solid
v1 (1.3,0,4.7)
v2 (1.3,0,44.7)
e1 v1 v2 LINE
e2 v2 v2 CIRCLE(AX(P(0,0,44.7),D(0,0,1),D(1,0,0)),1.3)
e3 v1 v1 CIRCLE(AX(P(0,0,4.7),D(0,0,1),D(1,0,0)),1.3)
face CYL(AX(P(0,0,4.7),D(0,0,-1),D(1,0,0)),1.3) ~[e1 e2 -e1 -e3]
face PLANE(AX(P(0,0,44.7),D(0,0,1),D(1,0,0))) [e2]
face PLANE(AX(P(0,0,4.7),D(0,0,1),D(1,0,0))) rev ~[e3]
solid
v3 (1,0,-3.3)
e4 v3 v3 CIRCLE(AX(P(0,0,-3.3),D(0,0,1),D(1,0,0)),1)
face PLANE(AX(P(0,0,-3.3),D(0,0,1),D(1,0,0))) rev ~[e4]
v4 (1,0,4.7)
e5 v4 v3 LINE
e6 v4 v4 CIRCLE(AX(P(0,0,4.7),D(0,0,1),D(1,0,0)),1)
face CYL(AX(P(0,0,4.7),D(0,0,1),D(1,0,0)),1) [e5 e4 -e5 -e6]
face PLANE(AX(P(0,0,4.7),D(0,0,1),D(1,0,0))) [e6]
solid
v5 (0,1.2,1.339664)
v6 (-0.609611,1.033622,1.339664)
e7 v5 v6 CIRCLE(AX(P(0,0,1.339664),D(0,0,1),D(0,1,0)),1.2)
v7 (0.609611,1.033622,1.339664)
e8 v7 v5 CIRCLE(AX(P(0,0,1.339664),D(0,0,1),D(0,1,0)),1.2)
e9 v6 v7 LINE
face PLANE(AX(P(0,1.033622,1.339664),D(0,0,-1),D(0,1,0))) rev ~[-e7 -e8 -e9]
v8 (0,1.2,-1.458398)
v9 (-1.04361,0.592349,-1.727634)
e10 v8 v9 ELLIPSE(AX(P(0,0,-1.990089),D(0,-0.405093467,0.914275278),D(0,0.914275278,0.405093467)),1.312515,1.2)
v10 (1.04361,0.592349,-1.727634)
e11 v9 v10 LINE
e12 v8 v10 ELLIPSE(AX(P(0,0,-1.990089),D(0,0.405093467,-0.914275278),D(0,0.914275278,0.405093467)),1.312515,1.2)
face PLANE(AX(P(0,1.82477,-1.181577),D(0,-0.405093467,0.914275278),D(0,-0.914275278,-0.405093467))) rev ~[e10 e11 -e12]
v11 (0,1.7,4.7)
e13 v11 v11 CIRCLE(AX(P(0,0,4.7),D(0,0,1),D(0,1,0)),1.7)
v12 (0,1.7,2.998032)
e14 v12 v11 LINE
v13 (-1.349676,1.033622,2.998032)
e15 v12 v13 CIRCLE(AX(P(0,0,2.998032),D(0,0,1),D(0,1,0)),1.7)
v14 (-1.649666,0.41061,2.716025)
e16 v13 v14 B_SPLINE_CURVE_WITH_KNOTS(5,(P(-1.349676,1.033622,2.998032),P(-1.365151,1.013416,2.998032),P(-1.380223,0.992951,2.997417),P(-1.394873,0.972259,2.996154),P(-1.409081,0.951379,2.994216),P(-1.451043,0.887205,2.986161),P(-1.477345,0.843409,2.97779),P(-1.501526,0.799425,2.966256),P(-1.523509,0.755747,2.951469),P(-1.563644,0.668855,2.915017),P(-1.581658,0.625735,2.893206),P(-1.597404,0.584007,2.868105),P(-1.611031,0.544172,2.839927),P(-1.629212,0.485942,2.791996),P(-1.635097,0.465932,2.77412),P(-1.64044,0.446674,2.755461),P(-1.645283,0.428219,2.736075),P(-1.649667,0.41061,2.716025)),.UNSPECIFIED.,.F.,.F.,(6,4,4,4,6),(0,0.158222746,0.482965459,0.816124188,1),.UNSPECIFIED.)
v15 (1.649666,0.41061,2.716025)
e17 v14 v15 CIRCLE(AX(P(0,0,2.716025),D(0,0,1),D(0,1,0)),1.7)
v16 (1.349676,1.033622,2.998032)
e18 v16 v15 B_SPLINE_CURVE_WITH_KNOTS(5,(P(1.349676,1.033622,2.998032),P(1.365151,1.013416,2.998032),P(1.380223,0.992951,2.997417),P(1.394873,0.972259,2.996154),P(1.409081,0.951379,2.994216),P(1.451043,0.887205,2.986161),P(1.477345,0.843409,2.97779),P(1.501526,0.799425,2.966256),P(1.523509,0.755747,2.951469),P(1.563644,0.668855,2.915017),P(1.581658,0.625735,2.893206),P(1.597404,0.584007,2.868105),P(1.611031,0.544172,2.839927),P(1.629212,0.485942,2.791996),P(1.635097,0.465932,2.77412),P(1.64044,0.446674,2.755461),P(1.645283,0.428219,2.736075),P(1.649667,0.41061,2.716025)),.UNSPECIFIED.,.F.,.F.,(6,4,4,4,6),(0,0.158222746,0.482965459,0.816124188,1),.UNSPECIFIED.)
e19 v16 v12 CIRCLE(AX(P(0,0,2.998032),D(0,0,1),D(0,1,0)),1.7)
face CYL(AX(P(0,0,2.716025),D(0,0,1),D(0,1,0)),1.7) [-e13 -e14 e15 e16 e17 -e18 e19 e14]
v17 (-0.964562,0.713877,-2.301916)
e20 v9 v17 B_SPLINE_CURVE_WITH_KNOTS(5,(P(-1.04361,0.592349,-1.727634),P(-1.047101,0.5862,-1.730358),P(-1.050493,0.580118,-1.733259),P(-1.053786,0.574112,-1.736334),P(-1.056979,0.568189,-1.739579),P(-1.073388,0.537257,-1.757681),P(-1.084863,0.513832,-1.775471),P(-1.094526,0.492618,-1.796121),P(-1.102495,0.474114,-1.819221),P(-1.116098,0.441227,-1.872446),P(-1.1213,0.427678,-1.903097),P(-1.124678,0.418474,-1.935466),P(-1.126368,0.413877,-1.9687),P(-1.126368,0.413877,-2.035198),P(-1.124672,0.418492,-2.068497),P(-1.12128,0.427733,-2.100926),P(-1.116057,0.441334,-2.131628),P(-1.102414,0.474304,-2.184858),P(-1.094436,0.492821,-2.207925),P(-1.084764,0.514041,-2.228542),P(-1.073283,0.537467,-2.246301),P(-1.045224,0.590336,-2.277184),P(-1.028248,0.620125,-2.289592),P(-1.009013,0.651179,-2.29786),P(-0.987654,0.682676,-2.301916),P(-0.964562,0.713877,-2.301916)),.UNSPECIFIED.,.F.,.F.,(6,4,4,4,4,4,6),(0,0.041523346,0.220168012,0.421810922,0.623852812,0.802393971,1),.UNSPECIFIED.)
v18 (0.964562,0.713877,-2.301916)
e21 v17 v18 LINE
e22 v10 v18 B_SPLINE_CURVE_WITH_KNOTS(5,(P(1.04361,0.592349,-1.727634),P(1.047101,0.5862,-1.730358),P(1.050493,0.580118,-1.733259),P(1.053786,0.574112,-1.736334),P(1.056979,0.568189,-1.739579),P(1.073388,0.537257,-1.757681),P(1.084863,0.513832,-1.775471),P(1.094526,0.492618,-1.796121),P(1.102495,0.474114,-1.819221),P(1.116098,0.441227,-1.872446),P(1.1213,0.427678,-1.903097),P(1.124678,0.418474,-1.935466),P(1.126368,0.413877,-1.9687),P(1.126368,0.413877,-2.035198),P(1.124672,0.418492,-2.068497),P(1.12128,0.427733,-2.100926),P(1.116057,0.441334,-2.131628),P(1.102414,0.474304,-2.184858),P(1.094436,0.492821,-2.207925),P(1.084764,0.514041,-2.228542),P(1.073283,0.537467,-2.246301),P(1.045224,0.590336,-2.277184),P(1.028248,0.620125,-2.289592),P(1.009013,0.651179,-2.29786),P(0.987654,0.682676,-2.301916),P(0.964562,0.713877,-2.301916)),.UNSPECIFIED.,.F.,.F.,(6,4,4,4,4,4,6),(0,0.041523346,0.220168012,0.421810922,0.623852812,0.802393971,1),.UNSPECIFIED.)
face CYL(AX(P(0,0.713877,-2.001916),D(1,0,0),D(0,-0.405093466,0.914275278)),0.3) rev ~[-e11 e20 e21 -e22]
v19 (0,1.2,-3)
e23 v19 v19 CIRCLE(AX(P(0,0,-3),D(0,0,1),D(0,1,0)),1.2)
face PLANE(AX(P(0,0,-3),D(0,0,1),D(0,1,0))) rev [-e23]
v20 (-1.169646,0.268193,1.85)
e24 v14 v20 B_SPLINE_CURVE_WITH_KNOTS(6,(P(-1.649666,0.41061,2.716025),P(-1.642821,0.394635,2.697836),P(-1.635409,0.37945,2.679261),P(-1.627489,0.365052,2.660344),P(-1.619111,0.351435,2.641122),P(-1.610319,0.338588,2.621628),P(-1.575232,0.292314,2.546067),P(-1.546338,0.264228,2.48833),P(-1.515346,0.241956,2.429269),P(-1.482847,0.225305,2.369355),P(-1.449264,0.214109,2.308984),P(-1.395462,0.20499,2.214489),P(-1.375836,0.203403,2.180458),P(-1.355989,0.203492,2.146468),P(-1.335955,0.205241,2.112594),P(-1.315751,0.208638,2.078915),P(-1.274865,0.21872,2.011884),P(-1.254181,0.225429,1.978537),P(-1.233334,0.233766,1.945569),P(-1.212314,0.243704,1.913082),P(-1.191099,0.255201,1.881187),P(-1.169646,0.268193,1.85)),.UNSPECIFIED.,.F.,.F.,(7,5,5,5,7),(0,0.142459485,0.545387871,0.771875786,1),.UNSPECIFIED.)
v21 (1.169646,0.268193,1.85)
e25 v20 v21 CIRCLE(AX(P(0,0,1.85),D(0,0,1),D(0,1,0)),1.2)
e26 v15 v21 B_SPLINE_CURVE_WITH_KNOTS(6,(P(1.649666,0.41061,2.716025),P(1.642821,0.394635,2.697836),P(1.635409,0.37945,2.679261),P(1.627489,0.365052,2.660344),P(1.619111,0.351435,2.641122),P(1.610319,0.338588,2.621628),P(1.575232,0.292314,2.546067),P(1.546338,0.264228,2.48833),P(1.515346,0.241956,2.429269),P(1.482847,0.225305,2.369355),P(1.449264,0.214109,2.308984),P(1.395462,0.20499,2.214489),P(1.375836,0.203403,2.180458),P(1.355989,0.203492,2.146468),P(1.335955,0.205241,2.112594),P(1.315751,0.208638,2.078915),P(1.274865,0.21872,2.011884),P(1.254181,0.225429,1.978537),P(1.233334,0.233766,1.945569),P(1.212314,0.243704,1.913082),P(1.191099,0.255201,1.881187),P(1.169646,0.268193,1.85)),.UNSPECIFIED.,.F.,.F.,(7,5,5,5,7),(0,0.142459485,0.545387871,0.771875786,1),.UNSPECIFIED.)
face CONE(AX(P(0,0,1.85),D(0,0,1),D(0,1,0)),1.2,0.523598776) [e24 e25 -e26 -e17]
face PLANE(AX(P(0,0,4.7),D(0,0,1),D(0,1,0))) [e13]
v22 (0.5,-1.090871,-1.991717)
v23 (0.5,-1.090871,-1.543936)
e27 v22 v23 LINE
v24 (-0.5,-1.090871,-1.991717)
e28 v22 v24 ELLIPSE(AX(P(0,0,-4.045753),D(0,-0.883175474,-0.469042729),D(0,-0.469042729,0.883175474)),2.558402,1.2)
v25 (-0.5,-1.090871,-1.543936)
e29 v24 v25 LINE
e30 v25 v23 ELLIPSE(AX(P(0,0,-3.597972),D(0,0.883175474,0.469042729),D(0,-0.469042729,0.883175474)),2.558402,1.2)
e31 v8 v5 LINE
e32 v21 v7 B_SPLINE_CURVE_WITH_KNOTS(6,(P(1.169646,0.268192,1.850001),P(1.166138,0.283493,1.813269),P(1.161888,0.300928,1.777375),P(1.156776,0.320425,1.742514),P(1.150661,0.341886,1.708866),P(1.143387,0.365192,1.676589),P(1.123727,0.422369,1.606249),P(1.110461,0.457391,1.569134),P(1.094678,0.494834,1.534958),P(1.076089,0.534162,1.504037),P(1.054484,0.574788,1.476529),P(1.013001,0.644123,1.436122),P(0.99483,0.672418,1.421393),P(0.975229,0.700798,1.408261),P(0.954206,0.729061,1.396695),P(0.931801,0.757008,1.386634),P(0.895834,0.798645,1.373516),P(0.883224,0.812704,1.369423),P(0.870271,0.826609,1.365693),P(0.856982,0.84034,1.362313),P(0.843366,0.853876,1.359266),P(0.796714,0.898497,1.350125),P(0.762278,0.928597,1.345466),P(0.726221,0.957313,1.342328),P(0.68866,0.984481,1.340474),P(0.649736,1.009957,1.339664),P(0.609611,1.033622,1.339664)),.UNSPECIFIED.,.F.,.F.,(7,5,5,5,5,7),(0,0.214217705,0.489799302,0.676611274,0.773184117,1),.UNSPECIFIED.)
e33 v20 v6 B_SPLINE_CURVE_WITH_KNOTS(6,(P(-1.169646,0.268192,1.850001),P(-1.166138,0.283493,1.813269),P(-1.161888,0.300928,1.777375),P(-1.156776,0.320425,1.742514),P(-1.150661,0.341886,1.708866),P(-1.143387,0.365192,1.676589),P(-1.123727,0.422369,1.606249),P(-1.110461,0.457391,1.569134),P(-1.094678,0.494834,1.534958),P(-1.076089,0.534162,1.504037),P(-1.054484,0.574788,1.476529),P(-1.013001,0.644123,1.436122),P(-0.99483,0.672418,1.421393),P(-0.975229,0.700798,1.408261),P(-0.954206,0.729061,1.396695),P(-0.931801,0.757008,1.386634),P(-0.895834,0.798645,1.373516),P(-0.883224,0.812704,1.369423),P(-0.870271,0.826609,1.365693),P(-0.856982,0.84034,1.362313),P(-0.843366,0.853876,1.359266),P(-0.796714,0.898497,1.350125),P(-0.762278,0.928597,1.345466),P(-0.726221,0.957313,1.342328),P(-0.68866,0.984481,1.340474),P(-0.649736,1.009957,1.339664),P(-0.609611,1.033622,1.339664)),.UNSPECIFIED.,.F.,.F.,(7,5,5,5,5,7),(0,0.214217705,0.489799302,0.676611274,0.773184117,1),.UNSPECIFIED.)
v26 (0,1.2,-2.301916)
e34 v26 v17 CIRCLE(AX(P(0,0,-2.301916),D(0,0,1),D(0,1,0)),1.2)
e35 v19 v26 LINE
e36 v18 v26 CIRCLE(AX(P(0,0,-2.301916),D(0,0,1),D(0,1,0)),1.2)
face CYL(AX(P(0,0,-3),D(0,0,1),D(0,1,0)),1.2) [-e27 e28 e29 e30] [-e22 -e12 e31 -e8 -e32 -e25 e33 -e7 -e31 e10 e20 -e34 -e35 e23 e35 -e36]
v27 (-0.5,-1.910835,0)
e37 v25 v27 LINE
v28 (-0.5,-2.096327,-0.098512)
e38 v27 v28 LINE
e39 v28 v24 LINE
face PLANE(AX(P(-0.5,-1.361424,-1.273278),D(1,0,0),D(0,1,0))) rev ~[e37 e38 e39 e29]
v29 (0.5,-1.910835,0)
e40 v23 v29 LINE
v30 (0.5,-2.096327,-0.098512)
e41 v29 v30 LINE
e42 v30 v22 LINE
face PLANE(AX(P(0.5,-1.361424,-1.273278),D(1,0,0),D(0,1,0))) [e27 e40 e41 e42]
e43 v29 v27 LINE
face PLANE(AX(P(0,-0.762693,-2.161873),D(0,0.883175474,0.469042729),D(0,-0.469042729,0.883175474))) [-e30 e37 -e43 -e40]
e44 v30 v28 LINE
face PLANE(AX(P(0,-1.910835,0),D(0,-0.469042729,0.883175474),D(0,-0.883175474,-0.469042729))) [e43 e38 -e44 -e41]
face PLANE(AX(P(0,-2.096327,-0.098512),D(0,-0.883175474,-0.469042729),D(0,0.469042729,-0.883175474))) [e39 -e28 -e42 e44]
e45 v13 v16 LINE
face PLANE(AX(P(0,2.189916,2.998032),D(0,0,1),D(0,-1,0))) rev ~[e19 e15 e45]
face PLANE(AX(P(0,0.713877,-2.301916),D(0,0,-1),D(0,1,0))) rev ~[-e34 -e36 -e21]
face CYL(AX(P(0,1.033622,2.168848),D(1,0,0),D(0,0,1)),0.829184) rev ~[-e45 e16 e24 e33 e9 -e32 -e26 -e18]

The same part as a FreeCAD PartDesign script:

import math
import FreeCAD as App
import Part
import Sketcher
Q = App.Units.Quantity

doc = App.newDocument("Part")
body = doc.addObject("PartDesign::Body", "Body")

sketch1 = body.newObject("Sketcher::SketchObject", "Sketch")
sketch1.AttachmentSupport = (doc.getObject("YZ_Plane"), [""])
sketch1.MapMode = "FlatFace"
sketch1.addGeometry(Part.LineSegment(App.Vector(0, 4.7, 0), App.Vector(0, -3, 0)), False)
sketch1.addGeometry(Part.LineSegment(App.Vector(0, -3, 0), App.Vector(1.2, -3, 0)), False)
sketch1.addGeometry(Part.LineSegment(App.Vector(1.2, -3, 0), App.Vector(1.2, 1.9, 0)), False)
sketch1.addGeometry(Part.LineSegment(App.Vector(1.2, 1.9, 0), App.Vector(1.7, 2.7, 0)), False)
sketch1.addGeometry(Part.LineSegment(App.Vector(1.7, 2.7, 0), App.Vector(1.7, 4.7, 0)), False)
sketch1.addGeometry(Part.LineSegment(App.Vector(1.7, 4.7, 0), App.Vector(0, 4.7, 0)), False)
sketch1.addConstraint(Sketcher.Constraint("Coincident", 0, 2, 1, 1))
sketch1.addConstraint(Sketcher.Constraint("Coincident", 1, 2, 2, 1))
sketch1.addConstraint(Sketcher.Constraint("Coincident", 2, 2, 3, 1))
sketch1.addConstraint(Sketcher.Constraint("Coincident", 3, 2, 4, 1))
sketch1.addConstraint(Sketcher.Constraint("Coincident", 4, 2, 5, 1))
sketch1.addConstraint(Sketcher.Constraint("Coincident", 5, 2, 0, 1))
sketch1.addConstraint(Sketcher.Constraint("Vertical", 0))
sketch1.addConstraint(Sketcher.Constraint("Horizontal", 1))
sketch1.addConstraint(Sketcher.Constraint("Vertical", 2))
sketch1.addConstraint(Sketcher.Constraint("Vertical", 4))
sketch1.addConstraint(Sketcher.Constraint("Horizontal", 5))
sketch1.addConstraint(Sketcher.Constraint("PointOnObject", 0, 2, -2))
sketch1.addConstraint(Sketcher.Constraint("Angle", 3, Q("60 deg")))
sketch1.addConstraint(Sketcher.Constraint("Distance", 3, Q("1 mm")))
sketch1.addConstraint(Sketcher.Constraint("DistanceX", 1, 1, 1, 2, Q("1.2 mm")))
sketch1.addConstraint(Sketcher.Constraint("DistanceY", 0, 2, 0, 1, Q("7.7 mm")))
sketch1.addConstraint(Sketcher.Constraint("DistanceY", 0, 2, -1, 1, Q("3 mm")))
sketch1.addConstraint(Sketcher.Constraint("DistanceY", 2, 1, 2, 2, Q("4.85 mm")))
revolution = body.newObject("PartDesign::Revolution", "Revolution")
revolution.Profile = sketch1
revolution.ReferenceAxis = (sketch1, ["V_Axis"])
revolution.Angle = 360

sketch2 = body.newObject("Sketcher::SketchObject", "Sketch001")
sketch2.AttachmentSupport = (doc.getObject("YZ_Plane"), [""])
sketch2.MapMode = "FlatFace"
sketch2.addGeometry(Part.LineSegment(App.Vector(2.19, 1.34, 0), App.Vector(2.19, 3, 0)), False)
sketch2.addGeometry(Part.LineSegment(App.Vector(2.19, 3, 0), App.Vector(1.03, 3, 0)), False)
sketch2.addGeometry(Part.ArcOfCircle(Part.Circle(App.Vector(1.03, 2.17, 0), App.Vector(0, 0, 1), 0.83), math.radians(90), math.radians(270)), False)
sketch2.addGeometry(Part.LineSegment(App.Vector(1.03, 1.34, 0), App.Vector(2.19, 1.34, 0)), False)
sketch2.addGeometry(Part.LineSegment(App.Vector(0.71, -2.3, 0), App.Vector(1.82, -2.3, 0)), False)
sketch2.addGeometry(Part.LineSegment(App.Vector(1.82, -2.3, 0), App.Vector(1.82, -1.18, 0)), False)
sketch2.addGeometry(Part.LineSegment(App.Vector(1.82, -1.18, 0), App.Vector(0.59, -1.73, 0)), False)
sketch2.addGeometry(Part.ArcOfCircle(Part.Circle(App.Vector(0.71, -2, 0), App.Vector(0, 0, 1), 0.3), math.radians(114), math.radians(270)), False)
sketch2.addConstraint(Sketcher.Constraint("Coincident", 0, 2, 1, 1))
sketch2.addConstraint(Sketcher.Constraint("Tangent", 1, 2, 2, 1))
sketch2.addConstraint(Sketcher.Constraint("Tangent", 2, 2, 3, 1))
sketch2.addConstraint(Sketcher.Constraint("Coincident", 3, 2, 0, 1))
sketch2.addConstraint(Sketcher.Constraint("Coincident", 4, 2, 5, 1))
sketch2.addConstraint(Sketcher.Constraint("Coincident", 5, 2, 6, 1))
sketch2.addConstraint(Sketcher.Constraint("Tangent", 6, 2, 7, 1))
sketch2.addConstraint(Sketcher.Constraint("Tangent", 7, 2, 4, 1))
sketch2.addConstraint(Sketcher.Constraint("Vertical", 0))
sketch2.addConstraint(Sketcher.Constraint("Horizontal", 1))
sketch2.addConstraint(Sketcher.Constraint("Horizontal", 3))
sketch2.addConstraint(Sketcher.Constraint("Horizontal", 4))
sketch2.addConstraint(Sketcher.Constraint("Vertical", 5))
sketch2.addConstraint(Sketcher.Constraint("Radius", 7, Q("0.3 mm")))
sketch2.addConstraint(Sketcher.Constraint("Radius", 2, Q("0.829184 mm")))
sketch2.addConstraint(Sketcher.Constraint("DistanceY", 5, 1, 5, 2, Q("1.120339 mm")))
sketch2.addConstraint(Sketcher.Constraint("DistanceX", 1, 2, 1, 1, Q("1.156293 mm")))
sketch2.addConstraint(Sketcher.Constraint("DistanceX", 4, 1, 4, 2, Q("1.110893 mm")))
sketch2.addConstraint(Sketcher.Constraint("DistanceY", -1, 1, 2, 3, Q("2.168848 mm")))
sketch2.addConstraint(Sketcher.Constraint("DistanceX", -1, 1, 4, 2, Q("1.82477 mm")))
sketch2.addConstraint(Sketcher.Constraint("DistanceX", 7, 3, 0, 2, Q("1.476038 mm")))
sketch2.addConstraint(Sketcher.Constraint("DistanceY", 7, 3, 0, 2, Q("4.999949 mm")))
pocket1 = body.newObject("PartDesign::Pocket", "Pocket")
pocket1.Profile = sketch2
pocket1.Type = "ThroughAll"
pocket1.Midplane = True

sketch3 = body.newObject("Sketcher::SketchObject", "Sketch002")
sketch3.AttachmentSupport = (doc.getObject("YZ_Plane"), [""])
sketch3.MapMode = "FlatFace"
sketch3.addGeometry(Part.LineSegment(App.Vector(-2.1, -0.1, 0), App.Vector(-0.76, -2.61, 0)), False)
sketch3.addGeometry(Part.LineSegment(App.Vector(-0.76, -2.61, 0), App.Vector(-0.76, -2.16, 0)), False)
sketch3.addGeometry(Part.LineSegment(App.Vector(-0.76, -2.16, 0), App.Vector(-1.91, 0, 0)), False)
sketch3.addGeometry(Part.LineSegment(App.Vector(-1.91, 0, 0), App.Vector(-2.1, -0.1, 0)), False)
sketch3.addConstraint(Sketcher.Constraint("Coincident", 0, 2, 1, 1))
sketch3.addConstraint(Sketcher.Constraint("Coincident", 1, 2, 2, 1))
sketch3.addConstraint(Sketcher.Constraint("Coincident", 2, 2, 3, 1))
sketch3.addConstraint(Sketcher.Constraint("Coincident", 3, 2, 0, 1))
sketch3.addConstraint(Sketcher.Constraint("Vertical", 1))
sketch3.addConstraint(Sketcher.Constraint("PointOnObject", 2, 2, -1))
sketch3.addConstraint(Sketcher.Constraint("Parallel", 0, 2))
sketch3.addConstraint(Sketcher.Constraint("Perpendicular", 2, 3))
sketch3.addConstraint(Sketcher.Constraint("DistanceY", 1, 1, 1, 2, Q("0.44778 mm")))
sketch3.addConstraint(Sketcher.Constraint("Distance", 0, Q("2.84331 mm")))
sketch3.addConstraint(Sketcher.Constraint("Distance", 2, Q("2.447841 mm")))
sketch3.addConstraint(Sketcher.Constraint("DistanceX", 0, 2, -1, 1, Q("0.762693 mm")))
pad1 = body.newObject("PartDesign::Pad", "Pad")
pad1.Profile = sketch3
pad1.Length = 1
pad1.Midplane = True
body2 = doc.addObject("PartDesign::Body", "Body001")

sketch4 = body2.newObject("Sketcher::SketchObject", "Sketch003")
sketch4.AttachmentSupport = (doc.getObject("XY_Plane001"), [""])
sketch4.MapMode = "FlatFace"
sketch4.AttachmentOffset = App.Placement(App.Vector(0, 0, 4.7), App.Rotation())
sketch4.addGeometry(Part.Circle(App.Vector(0, 0, 0), App.Vector(0, 0, 1), 1), False)
sketch4.addConstraint(Sketcher.Constraint("Coincident", 0, 3, -1, 1))
sketch4.addConstraint(Sketcher.Constraint("Diameter", 0, Q("2 mm")))
pad2 = body2.newObject("PartDesign::Pad", "Pad001")
pad2.Profile = sketch4
pad2.Length = 8
pad2.Reversed = True
body3 = doc.addObject("PartDesign::Body", "Body002")

sketch5 = body3.newObject("Sketcher::SketchObject", "Sketch004")
sketch5.AttachmentSupport = (doc.getObject("XY_Plane002"), [""])
sketch5.MapMode = "FlatFace"
sketch5.AttachmentOffset = App.Placement(App.Vector(0, 0, 4.7), App.Rotation())
sketch5.addGeometry(Part.Circle(App.Vector(0, 0, 0), App.Vector(0, 0, 1), 1.3), False)
sketch5.addConstraint(Sketcher.Constraint("Coincident", 0, 3, -1, 1))
sketch5.addConstraint(Sketcher.Constraint("Diameter", 0, Q("2.6 mm")))
pad3 = body3.newObject("PartDesign::Pad", "Pad002")
pad3.Profile = sketch5
pad3.Length = 40

doc.recompute()
